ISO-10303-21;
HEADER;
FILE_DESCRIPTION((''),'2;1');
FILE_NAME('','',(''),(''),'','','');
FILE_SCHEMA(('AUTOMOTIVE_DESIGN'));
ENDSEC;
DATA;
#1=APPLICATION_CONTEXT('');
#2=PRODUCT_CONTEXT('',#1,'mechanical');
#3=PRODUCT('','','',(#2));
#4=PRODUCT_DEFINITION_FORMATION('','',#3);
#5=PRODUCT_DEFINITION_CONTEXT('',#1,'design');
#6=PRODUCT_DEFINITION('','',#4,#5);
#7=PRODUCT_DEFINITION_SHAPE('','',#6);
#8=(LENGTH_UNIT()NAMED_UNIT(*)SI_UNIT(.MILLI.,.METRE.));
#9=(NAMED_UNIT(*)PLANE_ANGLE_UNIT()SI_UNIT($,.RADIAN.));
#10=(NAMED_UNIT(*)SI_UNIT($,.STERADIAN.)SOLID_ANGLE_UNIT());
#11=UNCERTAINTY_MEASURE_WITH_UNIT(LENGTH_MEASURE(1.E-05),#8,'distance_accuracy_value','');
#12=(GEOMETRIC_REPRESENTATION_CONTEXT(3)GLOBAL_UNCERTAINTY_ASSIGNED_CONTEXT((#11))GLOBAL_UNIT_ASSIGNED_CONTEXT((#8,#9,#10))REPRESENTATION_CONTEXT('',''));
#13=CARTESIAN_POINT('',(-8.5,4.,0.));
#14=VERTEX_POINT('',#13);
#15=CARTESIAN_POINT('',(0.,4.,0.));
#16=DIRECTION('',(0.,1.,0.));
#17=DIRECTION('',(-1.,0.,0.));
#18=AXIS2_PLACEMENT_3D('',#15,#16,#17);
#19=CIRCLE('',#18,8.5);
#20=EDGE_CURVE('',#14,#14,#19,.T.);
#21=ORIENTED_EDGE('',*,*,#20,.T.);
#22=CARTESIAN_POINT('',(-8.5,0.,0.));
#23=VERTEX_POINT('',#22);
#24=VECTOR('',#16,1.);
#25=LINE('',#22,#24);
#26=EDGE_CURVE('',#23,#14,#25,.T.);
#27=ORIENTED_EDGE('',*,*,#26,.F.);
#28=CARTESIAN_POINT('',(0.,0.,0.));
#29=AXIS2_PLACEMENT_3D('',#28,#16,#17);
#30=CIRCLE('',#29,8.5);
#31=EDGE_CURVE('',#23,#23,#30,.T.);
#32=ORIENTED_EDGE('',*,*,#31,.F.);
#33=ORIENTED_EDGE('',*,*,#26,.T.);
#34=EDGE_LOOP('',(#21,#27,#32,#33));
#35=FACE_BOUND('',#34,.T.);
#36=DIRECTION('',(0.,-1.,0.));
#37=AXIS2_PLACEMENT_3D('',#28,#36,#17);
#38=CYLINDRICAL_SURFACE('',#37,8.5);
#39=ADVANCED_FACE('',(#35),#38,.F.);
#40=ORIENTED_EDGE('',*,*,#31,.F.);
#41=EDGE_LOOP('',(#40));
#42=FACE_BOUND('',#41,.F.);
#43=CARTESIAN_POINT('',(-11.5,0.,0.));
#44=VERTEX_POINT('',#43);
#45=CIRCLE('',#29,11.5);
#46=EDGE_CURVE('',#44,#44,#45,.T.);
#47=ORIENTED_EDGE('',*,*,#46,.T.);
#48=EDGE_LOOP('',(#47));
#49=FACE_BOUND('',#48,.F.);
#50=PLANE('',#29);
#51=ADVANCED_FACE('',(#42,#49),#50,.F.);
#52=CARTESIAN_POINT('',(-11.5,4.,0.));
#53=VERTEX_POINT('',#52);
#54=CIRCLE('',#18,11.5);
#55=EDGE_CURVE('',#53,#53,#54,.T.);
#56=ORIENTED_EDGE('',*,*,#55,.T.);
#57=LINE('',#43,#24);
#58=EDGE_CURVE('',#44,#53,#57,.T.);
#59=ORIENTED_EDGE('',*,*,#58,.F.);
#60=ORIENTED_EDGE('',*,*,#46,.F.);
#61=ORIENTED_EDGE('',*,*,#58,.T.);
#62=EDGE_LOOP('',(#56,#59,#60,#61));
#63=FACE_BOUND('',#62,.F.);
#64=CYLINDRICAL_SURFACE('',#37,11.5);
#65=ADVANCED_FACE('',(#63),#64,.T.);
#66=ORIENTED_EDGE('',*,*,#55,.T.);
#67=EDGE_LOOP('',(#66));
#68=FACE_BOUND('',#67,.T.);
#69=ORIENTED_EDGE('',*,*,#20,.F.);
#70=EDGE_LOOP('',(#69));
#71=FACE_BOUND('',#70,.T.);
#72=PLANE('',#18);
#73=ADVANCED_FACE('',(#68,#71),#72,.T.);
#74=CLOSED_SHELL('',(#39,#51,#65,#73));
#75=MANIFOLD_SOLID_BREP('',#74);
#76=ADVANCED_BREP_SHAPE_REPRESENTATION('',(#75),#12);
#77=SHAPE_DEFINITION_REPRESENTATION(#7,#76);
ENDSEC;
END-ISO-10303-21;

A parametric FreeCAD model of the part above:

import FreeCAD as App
import Part
import Sketcher
from FreeCAD import Vector
Q = App.Units.Quantity

doc = App.newDocument("Part")
body = doc.addObject("PartDesign::Body", "Body")

sketch1 = body.newObject("Sketcher::SketchObject", "Sketch")
sketch1.AttachmentSupport = (doc.getObject("XZ_Plane"), [""])
sketch1.MapMode = "FlatFace"
sketch1.addGeometry(Part.Circle(Vector(0, 0, 0), Vector(0, 0, 1), 12), False)
sketch1.addGeometry(Part.Circle(Vector(0, 0, 0), Vector(0, 0, 1), 8), False)
sketch1.addConstraint(Sketcher.Constraint("Coincident", 0, 3, -1, 1))
sketch1.addConstraint(Sketcher.Constraint("Coincident", 1, 3, -1, 1))
sketch1.addConstraint(Sketcher.Constraint("Diameter", 0, Q("23 mm")))
sketch1.addConstraint(Sketcher.Constraint("Diameter", 1, Q("17 mm")))
pad1 = body.newObject("PartDesign::Pad", "Pad")
pad1.Profile = sketch1
pad1.Length = 4
pad1.Reversed = True

doc.recompute()
